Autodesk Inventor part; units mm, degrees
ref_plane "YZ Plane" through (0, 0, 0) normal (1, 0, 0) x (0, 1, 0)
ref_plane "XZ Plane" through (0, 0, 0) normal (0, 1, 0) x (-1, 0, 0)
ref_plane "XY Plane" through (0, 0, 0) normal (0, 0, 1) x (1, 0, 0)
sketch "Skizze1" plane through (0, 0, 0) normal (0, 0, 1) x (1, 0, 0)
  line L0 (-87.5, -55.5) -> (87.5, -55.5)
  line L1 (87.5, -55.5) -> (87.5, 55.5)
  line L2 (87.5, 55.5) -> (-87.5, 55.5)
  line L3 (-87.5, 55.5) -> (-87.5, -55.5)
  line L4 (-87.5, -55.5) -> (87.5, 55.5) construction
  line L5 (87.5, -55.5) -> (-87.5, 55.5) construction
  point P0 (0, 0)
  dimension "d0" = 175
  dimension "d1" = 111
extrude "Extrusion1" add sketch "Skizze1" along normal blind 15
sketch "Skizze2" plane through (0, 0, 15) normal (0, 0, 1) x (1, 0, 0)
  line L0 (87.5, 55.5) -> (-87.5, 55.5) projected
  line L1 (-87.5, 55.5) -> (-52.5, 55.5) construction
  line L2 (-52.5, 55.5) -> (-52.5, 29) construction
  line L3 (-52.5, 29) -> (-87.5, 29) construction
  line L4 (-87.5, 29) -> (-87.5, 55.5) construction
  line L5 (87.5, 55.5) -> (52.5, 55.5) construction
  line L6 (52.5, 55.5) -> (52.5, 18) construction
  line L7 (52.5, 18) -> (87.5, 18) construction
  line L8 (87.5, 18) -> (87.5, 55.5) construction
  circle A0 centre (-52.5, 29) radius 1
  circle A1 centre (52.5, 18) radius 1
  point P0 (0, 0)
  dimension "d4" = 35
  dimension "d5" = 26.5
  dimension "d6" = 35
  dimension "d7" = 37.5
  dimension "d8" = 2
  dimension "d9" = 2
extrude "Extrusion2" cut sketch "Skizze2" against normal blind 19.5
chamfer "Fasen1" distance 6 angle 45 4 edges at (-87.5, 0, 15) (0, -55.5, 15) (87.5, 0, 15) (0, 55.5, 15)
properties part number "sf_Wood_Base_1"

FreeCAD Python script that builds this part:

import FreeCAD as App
import Part
import Sketcher

V = App.Vector
Q = App.Units.Quantity


def edges_at(feature, points):
    """Names of the edges that pass closest to the given points."""
    edges = feature.Shape.Edges
    near = lambda p: min(range(len(edges)), key=lambda i: edges[i].distToShape(Part.Vertex(*p))[0])
    return sorted({f"Edge{near(p) + 1}" for p in points})


def add_polygon(sketch, points):
    """Adds a closed chain of lines whose ends are joined by coincident constraints."""
    first, n = sketch.GeometryCount, len(points)
    for a, b in zip(points, points[1:] + points[:1]):
        sketch.addGeometry(Part.LineSegment(App.Vector(*a, 0), App.Vector(*b, 0)), False)
    for i in range(n):
        sketch.addConstraint(Sketcher.Constraint("Coincident", first + i, 2, first + (i + 1) % n, 1))

doc = App.newDocument("Part")
body = doc.addObject("PartDesign::Body", "Body")

sketch1 = body.newObject("Sketcher::SketchObject", "Sketch")
sketch1.AttachmentSupport = (doc.getObject("XY_Plane"), [""])
sketch1.MapMode = "FlatFace"
add_polygon(sketch1, [(-87.5, 55.5), (-87.5, -55.5), (87.5, -55.5), (87.5, 55.5)])
sketch1.addConstraint([
    Sketcher.Constraint("Vertical", 0),
    Sketcher.Constraint("Horizontal", 1),
    Sketcher.Constraint("Vertical", 2),
    Sketcher.Constraint("Horizontal", 3),
    Sketcher.Constraint("Symmetric", 0, 2, 2, 2, -1, 1),
    Sketcher.Constraint("DistanceX", 1, 1, 1, 2, Q("175 mm")),
    Sketcher.Constraint("DistanceY", 0, 2, 0, 1, Q("111 mm")),
])
pad1 = body.newObject("PartDesign::Pad", "Pad")
pad1.Profile = sketch1
pad1.Length = 15

sketch2 = body.newObject("Sketcher::SketchObject", "Sketch001")
sketch2.AttachmentSupport = (doc.getObject("XY_Plane"), [""])
sketch2.MapMode = "FlatFace"
sketch2.AttachmentOffset = App.Placement(V(0, 0, 15), App.Rotation())
sketch2.addGeometry([
    Part.Circle(V(-52.5, 29, 0), V(0, 0, 1), 1),
    Part.Circle(V(52.5, 18, 0), V(0, 0, 1), 1),
], False)
sketch2.addConstraint([
    Sketcher.Constraint("Equal", 0, 1),
    Sketcher.Constraint("Diameter", 0, Q("2 mm")),
    Sketcher.Constraint("DistanceY", -1, 1, 0, 3, Q("29 mm")),
    Sketcher.Constraint("DistanceY", -1, 1, 1, 3, Q("18 mm")),
    Sketcher.Constraint("DistanceX", 0, 3, 1, 3, Q("105 mm")),
    Sketcher.Constraint("DistanceX", 0, 3, -1, 1, Q("52.5 mm")),
])
pocket1 = body.newObject("PartDesign::Pocket", "Pocket")
pocket1.Profile = sketch2
pocket1.Length = 19.5
doc.recompute()

chamfer = body.newObject("PartDesign::Chamfer", "Chamfer")
chamfer.Base = (pocket1, edges_at(pocket1, [
    (-87.5, 0, 15),
    (0, -55.5, 15),
    (87.5, 0, 15),
    (0, 55.5, 15),
]))
chamfer.Size = 6

doc.recompute()
